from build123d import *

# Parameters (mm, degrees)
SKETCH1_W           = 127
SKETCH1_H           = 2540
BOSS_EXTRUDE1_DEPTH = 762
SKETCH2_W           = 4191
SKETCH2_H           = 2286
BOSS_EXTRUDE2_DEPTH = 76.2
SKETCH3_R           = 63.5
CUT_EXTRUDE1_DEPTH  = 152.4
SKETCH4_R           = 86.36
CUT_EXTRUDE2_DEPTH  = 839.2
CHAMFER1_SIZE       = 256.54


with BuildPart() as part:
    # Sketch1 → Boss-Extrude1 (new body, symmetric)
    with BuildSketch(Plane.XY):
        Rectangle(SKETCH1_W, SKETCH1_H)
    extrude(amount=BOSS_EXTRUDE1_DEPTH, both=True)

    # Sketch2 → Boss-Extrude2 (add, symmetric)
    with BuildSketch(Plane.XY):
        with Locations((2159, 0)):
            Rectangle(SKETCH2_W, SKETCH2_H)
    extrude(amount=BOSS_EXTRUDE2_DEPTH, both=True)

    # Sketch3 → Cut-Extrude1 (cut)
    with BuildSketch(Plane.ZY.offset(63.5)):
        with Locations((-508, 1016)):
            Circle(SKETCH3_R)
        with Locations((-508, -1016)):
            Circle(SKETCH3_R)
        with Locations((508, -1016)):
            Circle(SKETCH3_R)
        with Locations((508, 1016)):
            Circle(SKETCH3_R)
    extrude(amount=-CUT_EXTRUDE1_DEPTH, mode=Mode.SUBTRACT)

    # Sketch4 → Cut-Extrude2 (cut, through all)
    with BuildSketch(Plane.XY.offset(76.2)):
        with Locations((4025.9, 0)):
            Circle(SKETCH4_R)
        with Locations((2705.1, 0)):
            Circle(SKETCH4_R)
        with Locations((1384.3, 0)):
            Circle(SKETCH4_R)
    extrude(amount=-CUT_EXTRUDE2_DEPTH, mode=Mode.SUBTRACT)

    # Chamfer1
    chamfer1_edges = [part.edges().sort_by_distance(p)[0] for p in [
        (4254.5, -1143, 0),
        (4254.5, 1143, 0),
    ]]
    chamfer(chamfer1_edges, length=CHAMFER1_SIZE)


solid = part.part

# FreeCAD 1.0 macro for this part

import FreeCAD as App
import Part
import Sketcher
from FreeCAD import Vector
Q = App.Units.Quantity


def edges_at(feature, points):
    """Names of the edges that pass closest to the given points."""
    edges = feature.Shape.Edges
    near = lambda p: min(range(len(edges)), key=lambda i: edges[i].distToShape(Part.Vertex(*p))[0])
    return sorted({f"Edge{near(p) + 1}" for p in points})


def add_polygon(sketch, points):
    """Adds a closed chain of lines whose ends are joined by coincident constraints."""
    first, n = sketch.GeometryCount, len(points)
    for a, b in zip(points, points[1:] + points[:1]):
        sketch.addGeometry(Part.LineSegment(App.Vector(*a, 0), App.Vector(*b, 0)), False)
    for i in range(n):
        sketch.addConstraint(Sketcher.Constraint("Coincident", first + i, 2, first + (i + 1) % n, 1))

doc = App.newDocument("Part")
body = doc.addObject("PartDesign::Body", "Body")

sketch1 = body.newObject("Sketcher::SketchObject", "Sketch")
sketch1.AttachmentSupport = (doc.getObject("XY_Plane"), [""])
sketch1.MapMode = "FlatFace"
add_polygon(sketch1, [(-64, 1270), (-64, -1270), (64, -1270), (64, 1270)])
sketch1.addConstraint([
    Sketcher.Constraint("Vertical", 0),
    Sketcher.Constraint("Horizontal", 1),
    Sketcher.Constraint("Vertical", 2),
    Sketcher.Constraint("Horizontal", 3),
    Sketcher.Constraint("Symmetric", 0, 2, 2, 2, -1, 1),
    Sketcher.Constraint("DistanceX", 1, 1, 1, 2, Q("5 in")),
    Sketcher.Constraint("DistanceY", 0, 2, 0, 1, Q("100 in")),
])
pad1 = body.newObject("PartDesign::Pad", "Pad")
pad1.Profile = sketch1
pad1.Length = Q("60 in")
pad1.Midplane = True

sketch2 = body.newObject("Sketcher::SketchObject", "Sketch001")
sketch2.AttachmentSupport = (doc.getObject("XY_Plane"), [""])
sketch2.MapMode = "FlatFace"
add_polygon(sketch2, [(64, 1143), (64, -1143), (4254, -1143), (4254, 1143)])
sketch2.addConstraint([
    Sketcher.Constraint("Vertical", 0),
    Sketcher.Constraint("Horizontal", 1),
    Sketcher.Constraint("Vertical", 2),
    Sketcher.Constraint("Horizontal", 3),
    Sketcher.Constraint("DistanceX", 1, 1, 1, 2, Q("165 in")),
    Sketcher.Constraint("DistanceY", 0, 2, 0, 1, Q("90 in")),
    Sketcher.Constraint("DistanceY", 0, 2, -1, 1, Q("45 in")),
    Sketcher.Constraint("DistanceX", -1, 1, 0, 2, Q("2.5 in")),
])
pad2 = body.newObject("PartDesign::Pad", "Pad001")
pad2.Profile = sketch2
pad2.Length = Q("6 in")
pad2.Midplane = True

sketch3 = body.newObject("Sketcher::SketchObject", "Sketch002")
sketch3.AttachmentSupport = (doc.getObject("YZ_Plane"), [""])
sketch3.MapMode = "FlatFace"
sketch3.AttachmentOffset = App.Placement(Vector(0, 0, -2.5 * 25.4), App.Rotation())
sketch3.addGeometry([
    Part.Circle(Vector(1016, -508, 0), Vector(0, 0, 1), 64),
    Part.Circle(Vector(-1016, -508, 0), Vector(0, 0, 1), 64),
    Part.Circle(Vector(-1016, 508, 0), Vector(0, 0, 1), 64),
    Part.Circle(Vector(1016, 508, 0), Vector(0, 0, 1), 64),
], False)
sketch3.addConstraint([
    Sketcher.Constraint("Equal", 0, 1),
    Sketcher.Constraint("Equal", 1, 2),
    Sketcher.Constraint("Equal", 2, 3),
    Sketcher.Constraint("Symmetric", 0, 3, 2, 3, -1, 1),
    Sketcher.Constraint("Symmetric", 1, 3, 3, 3, -1, 1),
    Sketcher.Constraint("Symmetric", 0, 3, 1, 3, -2),
    Sketcher.Constraint("Diameter", 0, Q("5 in")),
    Sketcher.Constraint("DistanceX", -1, 1, 0, 3, Q("40 in")),
    Sketcher.Constraint("DistanceY", 0, 3, -1, 1, Q("20 in")),
])
pocket1 = body.newObject("PartDesign::Pocket", "Pocket")
pocket1.Profile = sketch3
pocket1.Length = Q("6 in")
pocket1.Reversed = True

sketch4 = body.newObject("Sketcher::SketchObject", "Sketch003")
sketch4.AttachmentSupport = (doc.getObject("XY_Plane"), [""])
sketch4.MapMode = "FlatFace"
sketch4.AttachmentOffset = App.Placement(Vector(0, 0, 3 * 25.4), App.Rotation())
sketch4.addGeometry([
    Part.Circle(Vector(4026, 0, 0), Vector(0, 0, 1), 86),
    Part.Circle(Vector(2705, 0, 0), Vector(0, 0, 1), 86),
    Part.Circle(Vector(1384, 0, 0), Vector(0, 0, 1), 86),
], False)
sketch4.addConstraint([
    Sketcher.Constraint("Equal", 0, 1),
    Sketcher.Constraint("Equal", 1, 2),
    Sketcher.Constraint("PointOnObject", 0, 3, -1),
    Sketcher.Constraint("PointOnObject", 1, 3, -1),
    Sketcher.Constraint("PointOnObject", 2, 3, -1),
    Sketcher.Constraint("Diameter", 0, Q("6.8 in")),
    Sketcher.Constraint("DistanceX", 1, 3, 0, 3, Q("52 in")),
    Sketcher.Constraint("DistanceX", 2, 3, 1, 3, Q("52 in")),
    Sketcher.Constraint("DistanceX", -1, 1, 0, 3, Q("158.5 in")),
])
pocket2 = body.newObject("PartDesign::Pocket", "Pocket001")
pocket2.Profile = sketch4
pocket2.Type = "ThroughAll"
doc.recompute()

chamfer = body.newObject("PartDesign::Chamfer", "Chamfer")
chamfer.Base = (pocket2, edges_at(pocket2, [(4254.5, -1143, 0), (4254.5, 1143, 0)]))
chamfer.Size = Q("10.1 in")

doc.recompute()
